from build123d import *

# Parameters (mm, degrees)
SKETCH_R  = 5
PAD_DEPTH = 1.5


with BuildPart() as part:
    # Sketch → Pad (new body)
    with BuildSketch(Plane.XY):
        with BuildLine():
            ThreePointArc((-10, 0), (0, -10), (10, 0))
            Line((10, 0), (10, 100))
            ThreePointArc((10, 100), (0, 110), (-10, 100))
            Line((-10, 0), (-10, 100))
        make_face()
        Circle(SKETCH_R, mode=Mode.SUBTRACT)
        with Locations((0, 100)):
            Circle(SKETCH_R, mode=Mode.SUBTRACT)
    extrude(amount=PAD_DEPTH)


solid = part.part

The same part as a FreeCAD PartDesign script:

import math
import FreeCAD as App
import Part
import Sketcher

V = App.Vector

doc = App.newDocument("Part")
body = doc.addObject("PartDesign::Body", "Body")

# Sketch on XY plane
sketch1 = body.newObject("Sketcher::SketchObject", "Sketch")
sketch1.AttachmentSupport = (doc.getObject("XY_Plane"), [""])
sketch1.MapMode = "FlatFace"
sketch1.addGeometry(Part.ArcOfCircle(Part.Circle(V(0, 0, 0), V(0, 0, 1), 10), math.radians(180), math.radians(360)), False)
sketch1.addGeometry(Part.LineSegment(V(10, 0, 0), V(10, 100, 0)), False)
sketch1.addGeometry(Part.ArcOfCircle(Part.Circle(V(0, 100, 0), V(0, 0, 1), 10), math.radians(0), math.radians(180)), False)
sketch1.addGeometry(Part.LineSegment(V(-10, 100, 0), V(-10, 0, 0)), False)
sketch1.addGeometry(Part.Circle(V(0, 0, 0), V(0, 0, 1), 5), False)
sketch1.addGeometry(Part.Circle(V(0, 100, 0), V(0, 0, 1), 5), False)
sketch1.addConstraint(Sketcher.Constraint("Tangent", 0, 2, 1, 1))
sketch1.addConstraint(Sketcher.Constraint("Tangent", 1, 2, 2, 1))
sketch1.addConstraint(Sketcher.Constraint("Tangent", 2, 2, 3, 1))
sketch1.addConstraint(Sketcher.Constraint("Tangent", 3, 2, 0, 1))
sketch1.addConstraint(Sketcher.Constraint("Vertical", 1))
sketch1.addConstraint(Sketcher.Constraint("Vertical", 3))
sketch1.addConstraint(Sketcher.Constraint("Coincident", 0, 3, -1, 1))
sketch1.addConstraint(Sketcher.Constraint("Coincident", 4, 3, -1, 1))
sketch1.addConstraint(Sketcher.Constraint("Coincident", 5, 3, 2, 3))
sketch1.addConstraint(Sketcher.Constraint("Equal", 4, 5))
sketch1.addConstraint(Sketcher.Constraint("Diameter", 4, 10.0))
sketch1.addConstraint(Sketcher.Constraint("Radius", 0, 10.0))
sketch1.addConstraint(Sketcher.Constraint("DistanceY", 1, 1, 1, 2, 100.0))
pad1 = body.newObject("PartDesign::Pad", "Pad")
pad1.Profile = sketch1
pad1.Length = 1.5

doc.recompute()
